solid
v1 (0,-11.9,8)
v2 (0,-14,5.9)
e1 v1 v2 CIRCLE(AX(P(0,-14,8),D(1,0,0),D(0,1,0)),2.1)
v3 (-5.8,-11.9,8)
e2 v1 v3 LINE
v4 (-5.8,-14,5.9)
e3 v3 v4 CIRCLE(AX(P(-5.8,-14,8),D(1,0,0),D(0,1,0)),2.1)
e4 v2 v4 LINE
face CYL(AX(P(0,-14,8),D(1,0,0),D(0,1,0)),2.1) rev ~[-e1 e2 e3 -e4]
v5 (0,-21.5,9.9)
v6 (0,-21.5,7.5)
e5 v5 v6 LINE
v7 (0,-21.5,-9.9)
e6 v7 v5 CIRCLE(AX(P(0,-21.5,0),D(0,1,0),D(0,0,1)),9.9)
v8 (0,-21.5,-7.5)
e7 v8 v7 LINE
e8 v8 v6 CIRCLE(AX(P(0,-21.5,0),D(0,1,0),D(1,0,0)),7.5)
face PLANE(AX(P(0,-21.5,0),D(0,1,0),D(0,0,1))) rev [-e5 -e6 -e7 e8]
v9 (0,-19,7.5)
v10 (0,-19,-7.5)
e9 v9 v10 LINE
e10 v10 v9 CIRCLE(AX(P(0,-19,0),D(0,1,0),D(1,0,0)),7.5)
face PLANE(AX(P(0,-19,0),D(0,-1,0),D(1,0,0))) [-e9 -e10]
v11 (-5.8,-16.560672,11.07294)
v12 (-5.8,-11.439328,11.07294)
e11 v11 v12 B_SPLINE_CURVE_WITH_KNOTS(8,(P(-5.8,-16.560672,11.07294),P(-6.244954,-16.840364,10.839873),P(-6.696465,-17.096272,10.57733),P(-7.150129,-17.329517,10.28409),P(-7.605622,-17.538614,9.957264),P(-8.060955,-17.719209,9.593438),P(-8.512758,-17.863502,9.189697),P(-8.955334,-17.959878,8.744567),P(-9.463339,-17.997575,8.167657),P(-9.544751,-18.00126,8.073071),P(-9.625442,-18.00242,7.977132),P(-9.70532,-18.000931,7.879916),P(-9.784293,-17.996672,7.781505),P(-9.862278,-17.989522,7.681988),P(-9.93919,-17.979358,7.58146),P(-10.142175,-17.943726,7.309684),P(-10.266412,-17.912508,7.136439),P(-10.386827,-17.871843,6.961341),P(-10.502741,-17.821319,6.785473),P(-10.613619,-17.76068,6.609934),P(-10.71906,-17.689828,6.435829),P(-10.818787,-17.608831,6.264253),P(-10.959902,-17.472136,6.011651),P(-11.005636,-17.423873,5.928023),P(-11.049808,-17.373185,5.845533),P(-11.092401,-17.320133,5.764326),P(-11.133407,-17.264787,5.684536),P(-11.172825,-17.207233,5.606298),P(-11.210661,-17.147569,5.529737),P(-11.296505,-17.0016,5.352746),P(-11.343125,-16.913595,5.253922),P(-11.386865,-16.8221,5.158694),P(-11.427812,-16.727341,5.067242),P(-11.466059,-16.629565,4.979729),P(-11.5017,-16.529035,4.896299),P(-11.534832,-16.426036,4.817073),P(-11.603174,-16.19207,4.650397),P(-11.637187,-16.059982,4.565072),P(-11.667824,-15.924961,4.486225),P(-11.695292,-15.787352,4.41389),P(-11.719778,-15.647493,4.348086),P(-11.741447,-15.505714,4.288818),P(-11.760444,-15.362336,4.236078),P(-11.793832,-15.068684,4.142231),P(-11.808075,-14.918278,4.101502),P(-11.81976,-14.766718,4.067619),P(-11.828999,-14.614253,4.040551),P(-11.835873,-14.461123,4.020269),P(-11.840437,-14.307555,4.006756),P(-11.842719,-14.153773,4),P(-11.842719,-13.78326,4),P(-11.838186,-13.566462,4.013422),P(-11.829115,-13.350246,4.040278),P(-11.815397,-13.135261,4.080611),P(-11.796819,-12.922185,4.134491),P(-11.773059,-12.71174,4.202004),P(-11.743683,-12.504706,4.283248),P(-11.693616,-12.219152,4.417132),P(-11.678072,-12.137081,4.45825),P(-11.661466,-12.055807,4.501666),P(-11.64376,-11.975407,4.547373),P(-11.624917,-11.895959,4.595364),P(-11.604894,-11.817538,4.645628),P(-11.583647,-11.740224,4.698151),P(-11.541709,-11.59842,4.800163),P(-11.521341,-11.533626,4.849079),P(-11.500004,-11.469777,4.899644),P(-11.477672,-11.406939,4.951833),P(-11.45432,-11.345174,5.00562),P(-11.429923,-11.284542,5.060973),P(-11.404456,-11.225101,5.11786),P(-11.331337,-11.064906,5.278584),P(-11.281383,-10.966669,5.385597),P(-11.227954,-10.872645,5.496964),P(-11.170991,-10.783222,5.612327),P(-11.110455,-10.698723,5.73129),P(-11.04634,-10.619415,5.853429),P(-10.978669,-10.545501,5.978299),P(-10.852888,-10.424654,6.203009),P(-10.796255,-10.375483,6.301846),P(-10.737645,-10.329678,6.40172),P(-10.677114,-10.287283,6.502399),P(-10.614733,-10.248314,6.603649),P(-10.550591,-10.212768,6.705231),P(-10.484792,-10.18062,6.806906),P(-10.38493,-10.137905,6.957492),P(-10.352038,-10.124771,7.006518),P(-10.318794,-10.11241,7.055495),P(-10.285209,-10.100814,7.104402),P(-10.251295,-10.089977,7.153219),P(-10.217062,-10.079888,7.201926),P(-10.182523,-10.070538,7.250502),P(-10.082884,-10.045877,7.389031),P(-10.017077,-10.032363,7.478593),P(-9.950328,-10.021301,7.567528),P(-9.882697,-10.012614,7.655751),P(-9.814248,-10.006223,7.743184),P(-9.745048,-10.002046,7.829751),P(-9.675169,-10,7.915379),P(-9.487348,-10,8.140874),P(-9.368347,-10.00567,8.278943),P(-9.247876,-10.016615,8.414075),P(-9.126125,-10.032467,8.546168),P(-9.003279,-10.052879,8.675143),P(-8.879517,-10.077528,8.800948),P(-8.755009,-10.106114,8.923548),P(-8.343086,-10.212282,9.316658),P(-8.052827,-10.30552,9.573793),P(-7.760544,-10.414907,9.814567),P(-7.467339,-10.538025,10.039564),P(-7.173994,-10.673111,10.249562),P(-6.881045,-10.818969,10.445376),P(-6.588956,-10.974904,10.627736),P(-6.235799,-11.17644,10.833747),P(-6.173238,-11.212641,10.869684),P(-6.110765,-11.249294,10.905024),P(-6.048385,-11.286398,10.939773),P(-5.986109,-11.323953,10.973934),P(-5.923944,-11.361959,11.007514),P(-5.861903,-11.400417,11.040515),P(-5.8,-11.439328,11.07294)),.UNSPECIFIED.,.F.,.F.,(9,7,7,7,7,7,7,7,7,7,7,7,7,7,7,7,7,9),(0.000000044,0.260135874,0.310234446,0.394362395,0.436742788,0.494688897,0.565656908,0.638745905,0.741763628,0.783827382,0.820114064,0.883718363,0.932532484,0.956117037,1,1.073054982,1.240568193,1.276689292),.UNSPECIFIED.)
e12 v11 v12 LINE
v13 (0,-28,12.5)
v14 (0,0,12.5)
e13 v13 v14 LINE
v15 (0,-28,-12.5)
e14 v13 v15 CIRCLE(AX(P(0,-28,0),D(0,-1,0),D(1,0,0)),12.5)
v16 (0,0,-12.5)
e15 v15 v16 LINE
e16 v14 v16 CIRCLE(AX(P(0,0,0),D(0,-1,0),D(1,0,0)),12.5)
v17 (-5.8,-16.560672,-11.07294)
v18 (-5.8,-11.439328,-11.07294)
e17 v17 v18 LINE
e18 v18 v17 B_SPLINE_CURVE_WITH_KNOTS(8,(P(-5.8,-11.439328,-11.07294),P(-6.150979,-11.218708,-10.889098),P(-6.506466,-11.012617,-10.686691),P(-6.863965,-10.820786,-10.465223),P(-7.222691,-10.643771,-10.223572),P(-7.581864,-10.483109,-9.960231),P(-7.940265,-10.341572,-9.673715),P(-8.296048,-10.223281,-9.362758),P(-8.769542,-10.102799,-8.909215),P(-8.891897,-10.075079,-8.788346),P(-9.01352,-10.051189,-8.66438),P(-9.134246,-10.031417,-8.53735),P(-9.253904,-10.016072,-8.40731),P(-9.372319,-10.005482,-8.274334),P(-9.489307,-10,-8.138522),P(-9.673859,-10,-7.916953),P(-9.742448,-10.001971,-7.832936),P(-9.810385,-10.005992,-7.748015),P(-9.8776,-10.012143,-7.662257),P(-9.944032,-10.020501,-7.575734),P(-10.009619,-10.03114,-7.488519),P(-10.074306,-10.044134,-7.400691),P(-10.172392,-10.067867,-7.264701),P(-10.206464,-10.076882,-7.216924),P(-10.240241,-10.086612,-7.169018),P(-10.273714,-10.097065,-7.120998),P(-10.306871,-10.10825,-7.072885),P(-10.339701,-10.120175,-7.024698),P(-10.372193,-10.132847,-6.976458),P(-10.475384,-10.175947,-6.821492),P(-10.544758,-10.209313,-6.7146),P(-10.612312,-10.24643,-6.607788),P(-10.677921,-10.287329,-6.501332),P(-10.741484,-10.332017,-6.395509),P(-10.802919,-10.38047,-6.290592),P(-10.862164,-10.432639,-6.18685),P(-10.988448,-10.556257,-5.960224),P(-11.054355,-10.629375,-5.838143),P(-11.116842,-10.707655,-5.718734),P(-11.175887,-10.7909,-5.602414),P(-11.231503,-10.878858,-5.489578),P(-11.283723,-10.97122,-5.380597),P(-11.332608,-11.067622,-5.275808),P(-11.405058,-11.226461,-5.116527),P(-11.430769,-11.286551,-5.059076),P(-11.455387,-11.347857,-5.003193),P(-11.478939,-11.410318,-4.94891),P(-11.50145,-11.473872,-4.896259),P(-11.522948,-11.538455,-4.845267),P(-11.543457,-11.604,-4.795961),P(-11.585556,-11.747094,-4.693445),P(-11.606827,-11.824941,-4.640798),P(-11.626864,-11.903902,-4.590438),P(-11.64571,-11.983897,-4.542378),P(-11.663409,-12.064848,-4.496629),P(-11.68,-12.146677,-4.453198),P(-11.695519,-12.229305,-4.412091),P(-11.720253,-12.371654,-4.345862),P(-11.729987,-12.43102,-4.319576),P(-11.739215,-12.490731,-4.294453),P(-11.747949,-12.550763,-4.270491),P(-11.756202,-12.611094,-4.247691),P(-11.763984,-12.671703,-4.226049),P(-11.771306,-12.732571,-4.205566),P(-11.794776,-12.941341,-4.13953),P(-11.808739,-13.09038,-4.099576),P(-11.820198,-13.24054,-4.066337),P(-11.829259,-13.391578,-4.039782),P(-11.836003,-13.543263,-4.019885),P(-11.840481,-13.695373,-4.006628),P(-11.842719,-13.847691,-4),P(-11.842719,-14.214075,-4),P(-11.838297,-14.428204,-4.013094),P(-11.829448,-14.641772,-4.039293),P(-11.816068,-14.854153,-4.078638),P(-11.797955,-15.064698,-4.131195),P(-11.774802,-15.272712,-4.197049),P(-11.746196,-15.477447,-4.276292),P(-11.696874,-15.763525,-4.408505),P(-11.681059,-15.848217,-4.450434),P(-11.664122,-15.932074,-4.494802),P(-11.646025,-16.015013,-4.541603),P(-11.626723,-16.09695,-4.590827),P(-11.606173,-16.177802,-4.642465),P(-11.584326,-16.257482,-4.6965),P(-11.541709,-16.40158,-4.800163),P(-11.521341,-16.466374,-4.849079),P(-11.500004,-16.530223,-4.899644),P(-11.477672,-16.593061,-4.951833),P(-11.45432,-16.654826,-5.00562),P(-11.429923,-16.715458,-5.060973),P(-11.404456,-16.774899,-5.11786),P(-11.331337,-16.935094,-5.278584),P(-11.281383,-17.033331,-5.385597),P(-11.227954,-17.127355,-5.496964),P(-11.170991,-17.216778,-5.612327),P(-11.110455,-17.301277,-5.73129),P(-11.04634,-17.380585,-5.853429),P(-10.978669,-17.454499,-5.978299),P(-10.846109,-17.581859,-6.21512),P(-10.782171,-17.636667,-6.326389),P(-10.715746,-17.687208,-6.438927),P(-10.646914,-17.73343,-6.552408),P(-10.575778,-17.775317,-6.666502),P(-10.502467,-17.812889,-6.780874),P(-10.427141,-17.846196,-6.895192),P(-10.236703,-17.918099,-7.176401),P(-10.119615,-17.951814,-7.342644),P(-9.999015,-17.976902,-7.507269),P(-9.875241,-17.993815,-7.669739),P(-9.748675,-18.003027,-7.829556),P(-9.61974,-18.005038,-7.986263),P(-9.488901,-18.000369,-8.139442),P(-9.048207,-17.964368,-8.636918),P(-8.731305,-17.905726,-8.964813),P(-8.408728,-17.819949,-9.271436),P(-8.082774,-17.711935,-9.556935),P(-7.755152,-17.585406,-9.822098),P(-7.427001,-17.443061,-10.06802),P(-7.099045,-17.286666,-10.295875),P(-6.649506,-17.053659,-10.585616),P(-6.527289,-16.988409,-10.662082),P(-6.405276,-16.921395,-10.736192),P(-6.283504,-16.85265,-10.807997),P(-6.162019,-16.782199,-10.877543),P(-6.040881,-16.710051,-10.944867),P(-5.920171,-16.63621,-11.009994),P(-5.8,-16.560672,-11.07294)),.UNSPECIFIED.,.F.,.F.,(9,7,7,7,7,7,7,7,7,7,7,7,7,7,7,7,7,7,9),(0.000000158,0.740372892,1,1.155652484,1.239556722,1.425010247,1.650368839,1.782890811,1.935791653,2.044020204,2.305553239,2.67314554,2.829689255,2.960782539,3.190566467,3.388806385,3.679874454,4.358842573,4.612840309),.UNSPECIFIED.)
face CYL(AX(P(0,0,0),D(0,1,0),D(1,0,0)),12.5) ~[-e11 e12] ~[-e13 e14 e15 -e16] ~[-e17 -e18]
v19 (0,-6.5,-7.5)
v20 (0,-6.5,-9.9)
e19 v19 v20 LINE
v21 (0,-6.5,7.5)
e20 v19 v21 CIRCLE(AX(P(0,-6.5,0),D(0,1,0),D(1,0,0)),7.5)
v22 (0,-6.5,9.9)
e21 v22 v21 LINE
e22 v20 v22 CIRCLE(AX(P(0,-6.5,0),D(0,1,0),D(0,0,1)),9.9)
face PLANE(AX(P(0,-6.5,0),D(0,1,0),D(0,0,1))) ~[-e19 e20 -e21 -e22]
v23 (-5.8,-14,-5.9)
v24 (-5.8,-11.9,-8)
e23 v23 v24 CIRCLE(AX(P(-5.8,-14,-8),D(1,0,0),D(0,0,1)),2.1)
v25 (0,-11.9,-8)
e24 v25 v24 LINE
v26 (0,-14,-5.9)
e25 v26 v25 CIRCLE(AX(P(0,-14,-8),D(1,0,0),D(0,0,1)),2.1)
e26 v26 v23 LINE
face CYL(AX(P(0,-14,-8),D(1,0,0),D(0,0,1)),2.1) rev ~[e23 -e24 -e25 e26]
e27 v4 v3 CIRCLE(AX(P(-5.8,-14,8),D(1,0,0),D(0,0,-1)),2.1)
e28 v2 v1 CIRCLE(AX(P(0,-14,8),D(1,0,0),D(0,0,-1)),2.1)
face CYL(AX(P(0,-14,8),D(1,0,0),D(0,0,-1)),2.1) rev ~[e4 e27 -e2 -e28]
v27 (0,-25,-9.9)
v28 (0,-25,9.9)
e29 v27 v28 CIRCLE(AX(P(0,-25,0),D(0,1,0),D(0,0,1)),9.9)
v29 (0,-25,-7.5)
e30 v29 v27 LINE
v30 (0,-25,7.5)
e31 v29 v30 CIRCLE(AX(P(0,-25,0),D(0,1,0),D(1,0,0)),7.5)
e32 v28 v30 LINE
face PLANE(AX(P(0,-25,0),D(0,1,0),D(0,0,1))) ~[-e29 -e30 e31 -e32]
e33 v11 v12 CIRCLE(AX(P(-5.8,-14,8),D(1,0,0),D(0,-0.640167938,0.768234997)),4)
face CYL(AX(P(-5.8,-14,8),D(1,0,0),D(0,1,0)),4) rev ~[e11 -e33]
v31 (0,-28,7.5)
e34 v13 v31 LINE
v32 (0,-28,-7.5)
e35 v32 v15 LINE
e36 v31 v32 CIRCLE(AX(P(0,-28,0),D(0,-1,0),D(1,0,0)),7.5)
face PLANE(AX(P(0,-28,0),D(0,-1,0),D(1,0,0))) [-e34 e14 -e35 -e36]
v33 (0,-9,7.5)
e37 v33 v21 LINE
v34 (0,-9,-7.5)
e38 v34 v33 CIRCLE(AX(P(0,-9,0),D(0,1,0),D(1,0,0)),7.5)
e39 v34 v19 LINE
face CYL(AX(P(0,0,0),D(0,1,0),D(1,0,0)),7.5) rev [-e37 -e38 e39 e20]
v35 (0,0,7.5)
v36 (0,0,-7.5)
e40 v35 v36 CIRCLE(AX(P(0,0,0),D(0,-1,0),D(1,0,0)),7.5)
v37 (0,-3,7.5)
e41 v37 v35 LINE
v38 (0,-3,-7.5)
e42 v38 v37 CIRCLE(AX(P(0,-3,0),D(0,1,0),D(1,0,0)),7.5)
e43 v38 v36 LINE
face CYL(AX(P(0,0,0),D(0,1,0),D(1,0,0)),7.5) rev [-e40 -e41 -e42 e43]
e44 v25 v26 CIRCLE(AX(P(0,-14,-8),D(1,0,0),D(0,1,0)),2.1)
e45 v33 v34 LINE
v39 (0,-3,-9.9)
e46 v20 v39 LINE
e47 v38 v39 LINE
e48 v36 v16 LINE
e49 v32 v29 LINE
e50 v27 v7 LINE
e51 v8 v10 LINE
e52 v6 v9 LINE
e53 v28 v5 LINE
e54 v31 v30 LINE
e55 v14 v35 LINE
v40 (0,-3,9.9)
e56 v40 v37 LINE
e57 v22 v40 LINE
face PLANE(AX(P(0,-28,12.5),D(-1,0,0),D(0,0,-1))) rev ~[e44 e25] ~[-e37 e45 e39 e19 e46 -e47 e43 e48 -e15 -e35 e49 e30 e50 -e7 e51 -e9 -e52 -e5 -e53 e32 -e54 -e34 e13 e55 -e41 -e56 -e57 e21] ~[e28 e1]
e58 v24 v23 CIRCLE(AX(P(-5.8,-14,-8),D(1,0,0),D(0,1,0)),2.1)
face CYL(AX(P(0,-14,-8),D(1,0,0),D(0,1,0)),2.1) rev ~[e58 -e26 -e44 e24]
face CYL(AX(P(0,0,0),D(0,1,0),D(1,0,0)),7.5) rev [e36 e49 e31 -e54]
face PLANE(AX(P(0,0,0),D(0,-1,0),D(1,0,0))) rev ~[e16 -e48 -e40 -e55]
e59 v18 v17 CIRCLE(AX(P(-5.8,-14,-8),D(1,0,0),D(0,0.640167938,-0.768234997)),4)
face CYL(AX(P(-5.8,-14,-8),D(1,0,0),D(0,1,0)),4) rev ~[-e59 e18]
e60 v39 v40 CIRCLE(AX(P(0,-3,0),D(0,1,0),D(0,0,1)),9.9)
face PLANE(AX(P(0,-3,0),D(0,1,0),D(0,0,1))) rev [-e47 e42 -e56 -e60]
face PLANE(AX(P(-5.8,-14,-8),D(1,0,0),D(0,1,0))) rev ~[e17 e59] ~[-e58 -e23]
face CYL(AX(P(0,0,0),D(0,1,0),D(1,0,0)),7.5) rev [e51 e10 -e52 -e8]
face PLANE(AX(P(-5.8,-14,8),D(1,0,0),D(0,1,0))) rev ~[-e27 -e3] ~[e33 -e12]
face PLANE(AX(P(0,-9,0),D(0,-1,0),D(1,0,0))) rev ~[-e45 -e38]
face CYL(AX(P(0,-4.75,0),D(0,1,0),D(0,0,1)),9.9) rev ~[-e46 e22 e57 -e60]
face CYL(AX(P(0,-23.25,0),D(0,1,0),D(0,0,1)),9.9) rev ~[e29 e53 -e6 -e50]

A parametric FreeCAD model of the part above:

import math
import FreeCAD as App
import Part
import Sketcher

V = App.Vector
Q = App.Units.Quantity


def add_polygon(sketch, points):
    """Adds a closed chain of lines whose ends are joined by coincident constraints."""
    first, n = sketch.GeometryCount, len(points)
    for a, b in zip(points, points[1:] + points[:1]):
        sketch.addGeometry(Part.LineSegment(App.Vector(*a, 0), App.Vector(*b, 0)), False)
    for i in range(n):
        sketch.addConstraint(Sketcher.Constraint("Coincident", first + i, 2, first + (i + 1) % n, 1))

doc = App.newDocument("Part")
body = doc.addObject("PartDesign::Body", "Body")

# Sketch on XZ plane
sketch1 = doc.addObject("Sketcher::SketchObject", "Sketch")
body.addObject(sketch1)
sketch1.AttachmentSupport = (doc.XZ_Plane, [""])
sketch1.MapMode = "FlatFace"
sketch1.addGeometry(Part.Circle(V(0, 0, 0), V(0, 0, 1), 12.5), False)
sketch1.addGeometry(Part.Circle(V(0, 0, 0), V(0, 0, 1), 7.5), False)
sketch1.addConstraint(Sketcher.Constraint("Coincident", 0, 3, -1, 1))
sketch1.addConstraint(Sketcher.Constraint("Coincident", 1, 3, -1, 1))
sketch1.addConstraint(Sketcher.Constraint("Diameter", 0, Q("25 mm")))
sketch1.addConstraint(Sketcher.Constraint("Diameter", 1, Q("15 mm")))
pad1 = doc.addObject("PartDesign::Pad", "Pad")
body.addObject(pad1)
pad1.Profile = sketch1
pad1.Length = 28

# Sketch on YZ plane
sketch2 = doc.addObject("Sketcher::SketchObject", "Sketch001")
body.addObject(sketch2)
sketch2.AttachmentSupport = (doc.YZ_Plane, [""])
sketch2.MapMode = "FlatFace"
add_polygon(sketch2, [(-25, 9.9), (-25, 2.521634), (-21.5, 2.521634), (-21.5, 9.9)])  # lines 0-3
add_polygon(sketch2, [(-6.5, 9.9), (-6.5, 2.521634), (-3, 2.521634), (-3, 9.9)])  # lines 4-7
sketch2.addConstraint(Sketcher.Constraint("Vertical", 0))
sketch2.addConstraint(Sketcher.Constraint("Horizontal", 1))
sketch2.addConstraint(Sketcher.Constraint("Vertical", 2))
sketch2.addConstraint(Sketcher.Constraint("Horizontal", 3))
sketch2.addConstraint(Sketcher.Constraint("Vertical", 4))
sketch2.addConstraint(Sketcher.Constraint("Horizontal", 5))
sketch2.addConstraint(Sketcher.Constraint("Vertical", 6))
sketch2.addConstraint(Sketcher.Constraint("Horizontal", 7))
sketch2.addConstraint(Sketcher.Constraint("Horizontal", 1, 2, 4, 2))
sketch2.addConstraint(Sketcher.Constraint("Horizontal", 3, 2, 6, 2))
sketch2.addConstraint(Sketcher.Constraint("Equal", 3, 5))
sketch2.addConstraint(Sketcher.Constraint("DistanceX", 1, 1, 1, 2, Q("3.5 mm")))
sketch2.addConstraint(Sketcher.Constraint("DistanceX", 0, 2, -1, 1, Q("25 mm")))
sketch2.addConstraint(Sketcher.Constraint("DistanceX", 5, 2, -1, 1, Q("3 mm")))
sketch2.addConstraint(Sketcher.Constraint("DistanceY", -1, 1, 2, 2, Q("9.9 mm")))
sketch2.addConstraint(Sketcher.Constraint("DistanceY", 0, 2, 0, 1, Q("7.378366 mm")))
groove = doc.addObject("PartDesign::Groove", "Groove")
body.addObject(groove)
groove.Profile = sketch2
groove.ReferenceAxis = (sketch2, ["H_Axis"])
groove.Angle = 360

# Sketch on XZ plane
sketch3 = doc.addObject("Sketcher::SketchObject", "Sketch002")
body.addObject(sketch3)
sketch3.AttachmentSupport = (doc.XZ_Plane, [""])
sketch3.MapMode = "FlatFace"
sketch3.AttachmentOffset = App.Placement(V(0, 0, 14), App.Rotation())
sketch3.addGeometry(Part.Circle(V(0, 0, 0), V(0, 0, 1), 8.5), False)
sketch3.addConstraint(Sketcher.Constraint("Coincident", 0, 3, -1, 1))
sketch3.addConstraint(Sketcher.Constraint("Diameter", 0, Q("17 mm")))
pad2 = doc.addObject("PartDesign::Pad", "Pad001")
body.addObject(pad2)
pad2.Profile = sketch3
pad2.Length = 10
pad2.Midplane = True

# Sketch on XZ plane
sketch4 = doc.addObject("Sketcher::SketchObject", "Sketch003")
body.addObject(sketch4)
sketch4.AttachmentSupport = (doc.XZ_Plane, [""])
sketch4.MapMode = "FlatFace"
sketch4.AttachmentOffset = App.Placement(V(0, 0, 28), App.Rotation())
sketch4.addGeometry(Part.LineSegment(V(0, 12.5, 0), V(0, -12.5, 0)), False)
sketch4.addGeometry(Part.ArcOfCircle(Part.Circle(V(0, 0, 0), V(0, 0, 1), 12.5), math.radians(-90), math.radians(0)), False)
sketch4.addGeometry(Part.ArcOfCircle(Part.Circle(V(0, 0, 0), V(0, 0, 1), 12.5), math.radians(0), math.radians(90)), False)
sketch4.addConstraint(Sketcher.Constraint("Coincident", 0, 2, 1, 1))
sketch4.addConstraint(Sketcher.Constraint("Tangent", 1, 2, 2, 1))
sketch4.addConstraint(Sketcher.Constraint("Coincident", 2, 2, 0, 1))
sketch4.addConstraint(Sketcher.Constraint("Vertical", 0))
sketch4.addConstraint(Sketcher.Constraint("Coincident", 1, 3, -1, 1))
sketch4.addConstraint(Sketcher.Constraint("Equal", 1, 2))
sketch4.addConstraint(Sketcher.Constraint("PointOnObject", 0, 2, -2))
sketch4.addConstraint(Sketcher.Constraint("PointOnObject", 1, 2, -1))
sketch4.addConstraint(Sketcher.Constraint("Radius", 1, Q("12.5 mm")))
pocket1 = doc.addObject("PartDesign::Pocket", "Pocket")
body.addObject(pocket1)
pocket1.Profile = sketch4
pocket1.Length = 30

# Sketch on YZ plane
sketch5 = doc.addObject("Sketcher::SketchObject", "Sketch004")
body.addObject(sketch5)
sketch5.AttachmentSupport = (doc.YZ_Plane, [""])
sketch5.MapMode = "FlatFace"
sketch5.addGeometry(Part.ArcOfCircle(Part.Circle(V(-14, -8, 0), V(0, 0, 1), 2.1), math.radians(0), math.radians(90)), False)
sketch5.addGeometry(Part.ArcOfCircle(Part.Circle(V(-14, -8, 0), V(0, 0, 1), 2.1), math.radians(90), math.radians(360)), False)
sketch5.addGeometry(Part.ArcOfCircle(Part.Circle(V(-14, 8, 0), V(0, 0, 1), 2.1), math.radians(0), math.radians(270)), False)
sketch5.addGeometry(Part.ArcOfCircle(Part.Circle(V(-14, 8, 0), V(0, 0, 1), 2.1), math.radians(-90), math.radians(0)), False)
sketch5.addConstraint(Sketcher.Constraint("Tangent", 0, 1, 1, 2))
sketch5.addConstraint(Sketcher.Constraint("Coincident", 1, 1, 0, 2))
sketch5.addConstraint(Sketcher.Constraint("Tangent", 2, 1, 3, 2))
sketch5.addConstraint(Sketcher.Constraint("Coincident", 3, 1, 2, 2))
sketch5.addConstraint(Sketcher.Constraint("Equal", 1, 2))
sketch5.addConstraint(Sketcher.Constraint("Symmetric", 0, 3, 2, 3, -1))
sketch5.addConstraint(Sketcher.Constraint("Horizontal", 1, 3, 0, 1))
sketch5.addConstraint(Sketcher.Constraint("Horizontal", 3, 3, 2, 1))
sketch5.addConstraint(Sketcher.Constraint("Vertical", 3, 3, 1, 1))
sketch5.addConstraint(Sketcher.Constraint("Vertical", 1, 1, 3, 1))
sketch5.addConstraint(Sketcher.Constraint("Radius", 0, Q("2.1 mm")))
sketch5.addConstraint(Sketcher.Constraint("DistanceX", 0, 3, -1, 1, Q("14 mm")))
sketch5.addConstraint(Sketcher.Constraint("DistanceY", 0, 3, -1, 1, Q("8 mm")))
pocket2 = doc.addObject("PartDesign::Pocket", "Pocket001")
body.addObject(pocket2)
pocket2.Profile = sketch5
pocket2.Length = 25

# Sketch on YZ plane
sketch6 = doc.addObject("Sketcher::SketchObject", "Sketch005")
body.addObject(sketch6)
sketch6.AttachmentSupport = (doc.YZ_Plane, [""])
sketch6.MapMode = "FlatFace"
sketch6.AttachmentOffset = App.Placement(V(0, 0, -5.8), App.Rotation())
sketch6.addGeometry(Part.Circle(V(-14, -8, 0), V(0, 0, 1), 4), False)
sketch6.addGeometry(Part.Circle(V(-14, 8, 0), V(0, 0, 1), 4), False)
sketch6.addConstraint(Sketcher.Constraint("Equal", 0, 1))
sketch6.addConstraint(Sketcher.Constraint("Symmetric", 0, 3, 1, 3, -1))
sketch6.addConstraint(Sketcher.Constraint("Diameter", 0, Q("8 mm")))
sketch6.addConstraint(Sketcher.Constraint("DistanceX", 0, 3, -1, 1, Q("14 mm")))
sketch6.addConstraint(Sketcher.Constraint("DistanceY", 0, 3, -1, 1, Q("8 mm")))
pocket3 = doc.addObject("PartDesign::Pocket", "Pocket002")
body.addObject(pocket3)
pocket3.Profile = sketch6
pocket3.Length = 19.2

doc.recompute()
